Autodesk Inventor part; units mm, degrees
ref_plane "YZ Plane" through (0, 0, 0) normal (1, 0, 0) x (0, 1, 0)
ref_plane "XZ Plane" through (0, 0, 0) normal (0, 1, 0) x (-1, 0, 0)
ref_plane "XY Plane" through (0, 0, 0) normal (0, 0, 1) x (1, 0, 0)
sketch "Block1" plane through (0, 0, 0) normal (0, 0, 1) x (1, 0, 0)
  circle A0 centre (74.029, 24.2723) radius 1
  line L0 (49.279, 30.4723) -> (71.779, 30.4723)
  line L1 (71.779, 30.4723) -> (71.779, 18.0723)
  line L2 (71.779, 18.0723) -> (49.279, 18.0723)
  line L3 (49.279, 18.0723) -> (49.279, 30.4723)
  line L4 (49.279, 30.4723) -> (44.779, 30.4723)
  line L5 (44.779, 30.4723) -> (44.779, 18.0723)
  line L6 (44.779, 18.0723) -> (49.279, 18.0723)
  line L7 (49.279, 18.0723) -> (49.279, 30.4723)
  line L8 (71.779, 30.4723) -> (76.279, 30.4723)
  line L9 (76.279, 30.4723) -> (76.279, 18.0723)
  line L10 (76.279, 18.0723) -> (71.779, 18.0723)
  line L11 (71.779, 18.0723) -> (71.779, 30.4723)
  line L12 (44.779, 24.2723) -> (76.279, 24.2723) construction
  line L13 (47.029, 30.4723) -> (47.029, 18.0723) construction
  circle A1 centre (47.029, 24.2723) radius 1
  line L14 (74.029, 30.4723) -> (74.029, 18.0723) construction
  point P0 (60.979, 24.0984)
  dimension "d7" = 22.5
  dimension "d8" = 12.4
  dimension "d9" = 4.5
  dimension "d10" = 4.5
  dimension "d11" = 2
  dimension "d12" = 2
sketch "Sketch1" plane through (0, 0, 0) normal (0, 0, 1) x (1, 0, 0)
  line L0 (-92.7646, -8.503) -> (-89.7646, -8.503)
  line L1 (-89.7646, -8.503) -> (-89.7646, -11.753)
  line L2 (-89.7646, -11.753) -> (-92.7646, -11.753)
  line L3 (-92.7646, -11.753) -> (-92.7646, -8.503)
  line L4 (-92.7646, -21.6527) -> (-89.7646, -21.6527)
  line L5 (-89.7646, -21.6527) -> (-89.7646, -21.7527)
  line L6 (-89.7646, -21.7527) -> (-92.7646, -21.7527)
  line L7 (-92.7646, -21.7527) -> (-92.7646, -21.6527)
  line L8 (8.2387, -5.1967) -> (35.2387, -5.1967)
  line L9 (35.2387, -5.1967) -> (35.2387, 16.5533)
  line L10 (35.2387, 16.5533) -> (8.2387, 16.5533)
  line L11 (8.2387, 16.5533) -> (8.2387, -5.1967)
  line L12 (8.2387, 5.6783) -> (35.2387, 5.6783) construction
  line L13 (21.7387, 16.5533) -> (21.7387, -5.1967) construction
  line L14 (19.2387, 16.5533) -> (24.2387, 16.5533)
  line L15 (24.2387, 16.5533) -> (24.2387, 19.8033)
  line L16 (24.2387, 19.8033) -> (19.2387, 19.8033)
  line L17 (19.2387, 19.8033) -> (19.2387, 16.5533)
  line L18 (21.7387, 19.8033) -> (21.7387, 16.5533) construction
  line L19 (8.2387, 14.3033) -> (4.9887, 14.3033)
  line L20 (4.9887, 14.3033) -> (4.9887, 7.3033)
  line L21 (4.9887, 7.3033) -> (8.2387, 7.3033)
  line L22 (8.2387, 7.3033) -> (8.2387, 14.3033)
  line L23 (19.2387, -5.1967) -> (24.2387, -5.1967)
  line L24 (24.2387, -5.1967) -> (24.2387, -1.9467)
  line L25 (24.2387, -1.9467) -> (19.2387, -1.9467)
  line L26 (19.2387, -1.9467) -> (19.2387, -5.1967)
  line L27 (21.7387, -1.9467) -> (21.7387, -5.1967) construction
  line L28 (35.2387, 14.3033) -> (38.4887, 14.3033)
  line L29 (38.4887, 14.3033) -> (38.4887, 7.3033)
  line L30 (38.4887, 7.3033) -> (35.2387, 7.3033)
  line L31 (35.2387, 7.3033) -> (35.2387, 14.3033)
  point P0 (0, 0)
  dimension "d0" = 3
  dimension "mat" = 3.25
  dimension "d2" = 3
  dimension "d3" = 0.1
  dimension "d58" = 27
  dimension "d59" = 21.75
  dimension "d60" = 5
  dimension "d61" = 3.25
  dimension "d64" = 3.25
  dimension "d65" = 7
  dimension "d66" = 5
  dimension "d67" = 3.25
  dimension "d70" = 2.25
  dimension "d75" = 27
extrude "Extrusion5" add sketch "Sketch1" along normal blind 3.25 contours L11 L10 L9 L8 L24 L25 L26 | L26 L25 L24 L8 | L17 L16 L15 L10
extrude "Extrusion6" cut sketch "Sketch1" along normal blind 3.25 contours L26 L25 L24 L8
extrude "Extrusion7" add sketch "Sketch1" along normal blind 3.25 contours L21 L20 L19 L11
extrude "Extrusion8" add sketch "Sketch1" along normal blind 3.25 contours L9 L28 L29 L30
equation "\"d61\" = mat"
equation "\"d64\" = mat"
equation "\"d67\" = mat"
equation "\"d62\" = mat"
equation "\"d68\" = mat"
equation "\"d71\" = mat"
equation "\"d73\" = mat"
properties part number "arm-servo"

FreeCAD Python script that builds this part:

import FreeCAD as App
import Part
import Sketcher
from FreeCAD import Vector
Q = App.Units.Quantity

doc = App.newDocument("Part")
body = doc.addObject("PartDesign::Body", "Body")

# Sketch on XY plane
sketch1 = body.newObject("Sketcher::SketchObject", "Sketch")
sketch1.AttachmentSupport = (doc.getObject("XY_Plane"), [""])
sketch1.MapMode = "FlatFace"
sketch1.addGeometry(Part.LineSegment(Vector(8.2387, -5.1967, 0), Vector(35.2387, -5.1967, 0)), False)
sketch1.addGeometry(Part.LineSegment(Vector(35.2387, -5.1967, 0), Vector(35.2387, 16.5533, 0)), False)
sketch1.addGeometry(Part.LineSegment(Vector(35.2387, 16.5533, 0), Vector(24.2387, 16.5533, 0)), False)
sketch1.addGeometry(Part.LineSegment(Vector(24.2387, 16.5533, 0), Vector(24.2387, 19.8033, 0)), False)
sketch1.addGeometry(Part.LineSegment(Vector(24.2387, 19.8033, 0), Vector(19.2387, 19.8033, 0)), False)
sketch1.addGeometry(Part.LineSegment(Vector(19.2387, 19.8033, 0), Vector(19.2387, 16.5533, 0)), False)
sketch1.addGeometry(Part.LineSegment(Vector(19.2387, 16.5533, 0), Vector(8.2387, 16.5533, 0)), False)
sketch1.addGeometry(Part.LineSegment(Vector(8.2387, 16.5533, 0), Vector(8.2387, -5.1967, 0)), False)
sketch1.addConstraint(Sketcher.Constraint("Coincident", 0, 2, 1, 1))
sketch1.addConstraint(Sketcher.Constraint("Coincident", 1, 2, 2, 1))
sketch1.addConstraint(Sketcher.Constraint("Coincident", 2, 2, 3, 1))
sketch1.addConstraint(Sketcher.Constraint("Coincident", 3, 2, 4, 1))
sketch1.addConstraint(Sketcher.Constraint("Coincident", 4, 2, 5, 1))
sketch1.addConstraint(Sketcher.Constraint("Coincident", 5, 2, 6, 1))
sketch1.addConstraint(Sketcher.Constraint("Coincident", 6, 2, 7, 1))
sketch1.addConstraint(Sketcher.Constraint("Coincident", 7, 2, 0, 1))
sketch1.addConstraint(Sketcher.Constraint("Horizontal", 0))
sketch1.addConstraint(Sketcher.Constraint("Vertical", 1))
sketch1.addConstraint(Sketcher.Constraint("Horizontal", 2))
sketch1.addConstraint(Sketcher.Constraint("Vertical", 3))
sketch1.addConstraint(Sketcher.Constraint("Horizontal", 4))
sketch1.addConstraint(Sketcher.Constraint("Vertical", 5))
sketch1.addConstraint(Sketcher.Constraint("Horizontal", 6))
sketch1.addConstraint(Sketcher.Constraint("Vertical", 7))
sketch1.addConstraint(Sketcher.Constraint("Horizontal", 2, 2, 5, 2))
sketch1.addConstraint(Sketcher.Constraint("Equal", 2, 6))
sketch1.addConstraint(Sketcher.Constraint("DistanceX", 0, 1, 0, 2, Q("27 mm")))
sketch1.addConstraint(Sketcher.Constraint("DistanceX", 4, 2, 4, 1, Q("5 mm")))
sketch1.addConstraint(Sketcher.Constraint("DistanceY", 1, 1, 1, 2, Q("21.75 mm")))
sketch1.addConstraint(Sketcher.Constraint("DistanceY", 3, 1, 3, 2, Q("3.25 mm")))
sketch1.addConstraint(Sketcher.Constraint("DistanceX", -1, 1, 0, 2, Q("35.2387 mm")))
sketch1.addConstraint(Sketcher.Constraint("DistanceY", 0, 2, -1, 1, Q("5.1967 mm")))
pad1 = body.newObject("PartDesign::Pad", "Pad")
pad1.Profile = sketch1
pad1.Length = 3.25

# Sketch on XY plane
sketch2 = body.newObject("Sketcher::SketchObject", "Sketch001")
sketch2.AttachmentSupport = (doc.getObject("XY_Plane"), [""])
sketch2.MapMode = "FlatFace"
sketch2.addGeometry(Part.LineSegment(Vector(19.2387, -1.9467, 0), Vector(19.2387, -5.1967, 0)), False)
sketch2.addGeometry(Part.LineSegment(Vector(19.2387, -5.1967, 0), Vector(24.2387, -5.1967, 0)), False)
sketch2.addGeometry(Part.LineSegment(Vector(24.2387, -5.1967, 0), Vector(24.2387, -1.9467, 0)), False)
sketch2.addGeometry(Part.LineSegment(Vector(24.2387, -1.9467, 0), Vector(19.2387, -1.9467, 0)), False)
sketch2.addConstraint(Sketcher.Constraint("Coincident", 0, 2, 1, 1))
sketch2.addConstraint(Sketcher.Constraint("Coincident", 1, 2, 2, 1))
sketch2.addConstraint(Sketcher.Constraint("Coincident", 2, 2, 3, 1))
sketch2.addConstraint(Sketcher.Constraint("Coincident", 3, 2, 0, 1))
sketch2.addConstraint(Sketcher.Constraint("Vertical", 0))
sketch2.addConstraint(Sketcher.Constraint("Horizontal", 1))
sketch2.addConstraint(Sketcher.Constraint("Vertical", 2))
sketch2.addConstraint(Sketcher.Constraint("Horizontal", 3))
sketch2.addConstraint(Sketcher.Constraint("DistanceX", 1, 1, 1, 2, Q("5 mm")))
sketch2.addConstraint(Sketcher.Constraint("DistanceY", 0, 2, 0, 1, Q("3.25 mm")))
sketch2.addConstraint(Sketcher.Constraint("DistanceX", -1, 1, 0, 2, Q("19.2387 mm")))
sketch2.addConstraint(Sketcher.Constraint("DistanceY", 0, 2, -1, 1, Q("5.1967 mm")))
pocket1 = body.newObject("PartDesign::Pocket", "Pocket")
pocket1.Profile = sketch2
pocket1.Length = 3.25
pocket1.Reversed = True

# Sketch on XY plane
sketch3 = body.newObject("Sketcher::SketchObject", "Sketch002")
sketch3.AttachmentSupport = (doc.getObject("XY_Plane"), [""])
sketch3.MapMode = "FlatFace"
sketch3.addGeometry(Part.LineSegment(Vector(4.9887, 7.3033, 0), Vector(8.2387, 7.3033, 0)), False)
sketch3.addGeometry(Part.LineSegment(Vector(8.2387, 7.3033, 0), Vector(8.2387, 14.3033, 0)), False)
sketch3.addGeometry(Part.LineSegment(Vector(8.2387, 14.3033, 0), Vector(4.9887, 14.3033, 0)), False)
sketch3.addGeometry(Part.LineSegment(Vector(4.9887, 14.3033, 0), Vector(4.9887, 7.3033, 0)), False)
sketch3.addConstraint(Sketcher.Constraint("Coincident", 0, 2, 1, 1))
sketch3.addConstraint(Sketcher.Constraint("Coincident", 1, 2, 2, 1))
sketch3.addConstraint(Sketcher.Constraint("Coincident", 2, 2, 3, 1))
sketch3.addConstraint(Sketcher.Constraint("Coincident", 3, 2, 0, 1))
sketch3.addConstraint(Sketcher.Constraint("Horizontal", 0))
sketch3.addConstraint(Sketcher.Constraint("Vertical", 1))
sketch3.addConstraint(Sketcher.Constraint("Horizontal", 2))
sketch3.addConstraint(Sketcher.Constraint("Vertical", 3))
sketch3.addConstraint(Sketcher.Constraint("DistanceY", 1, 1, 1, 2, Q("7 mm")))
sketch3.addConstraint(Sketcher.Constraint("DistanceX", 0, 1, 0, 2, Q("3.25 mm")))
sketch3.addConstraint(Sketcher.Constraint("DistanceX", -1, 1, 0, 2, Q("8.2387 mm")))
sketch3.addConstraint(Sketcher.Constraint("DistanceY", -1, 1, 0, 2, Q("7.3033 mm")))
pad2 = body.newObject("PartDesign::Pad", "Pad001")
pad2.Profile = sketch3
pad2.Length = 3.25

# Sketch on XY plane
sketch4 = body.newObject("Sketcher::SketchObject", "Sketch003")
sketch4.AttachmentSupport = (doc.getObject("XY_Plane"), [""])
sketch4.MapMode = "FlatFace"
sketch4.addGeometry(Part.LineSegment(Vector(35.2387, 14.3033, 0), Vector(35.2387, 7.3033, 0)), False)
sketch4.addGeometry(Part.LineSegment(Vector(35.2387, 7.3033, 0), Vector(38.4887, 7.3033, 0)), False)
sketch4.addGeometry(Part.LineSegment(Vector(38.4887, 7.3033, 0), Vector(38.4887, 14.3033, 0)), False)
sketch4.addGeometry(Part.LineSegment(Vector(38.4887, 14.3033, 0), Vector(35.2387, 14.3033, 0)), False)
sketch4.addConstraint(Sketcher.Constraint("Coincident", 0, 2, 1, 1))
sketch4.addConstraint(Sketcher.Constraint("Coincident", 1, 2, 2, 1))
sketch4.addConstraint(Sketcher.Constraint("Coincident", 2, 2, 3, 1))
sketch4.addConstraint(Sketcher.Constraint("Coincident", 3, 2, 0, 1))
sketch4.addConstraint(Sketcher.Constraint("Vertical", 0))
sketch4.addConstraint(Sketcher.Constraint("Horizontal", 1))
sketch4.addConstraint(Sketcher.Constraint("Vertical", 2))
sketch4.addConstraint(Sketcher.Constraint("Horizontal", 3))
sketch4.addConstraint(Sketcher.Constraint("DistanceY", 0, 2, 0, 1, Q("7 mm")))
sketch4.addConstraint(Sketcher.Constraint("DistanceX", 1, 1, 1, 2, Q("3.25 mm")))
sketch4.addConstraint(Sketcher.Constraint("DistanceX", -1, 1, 0, 2, Q("35.2387 mm")))
sketch4.addConstraint(Sketcher.Constraint("DistanceY", -1, 1, 0, 2, Q("7.3033 mm")))
pad3 = body.newObject("PartDesign::Pad", "Pad002")
pad3.Profile = sketch4
pad3.Length = 3.25

doc.recompute()
